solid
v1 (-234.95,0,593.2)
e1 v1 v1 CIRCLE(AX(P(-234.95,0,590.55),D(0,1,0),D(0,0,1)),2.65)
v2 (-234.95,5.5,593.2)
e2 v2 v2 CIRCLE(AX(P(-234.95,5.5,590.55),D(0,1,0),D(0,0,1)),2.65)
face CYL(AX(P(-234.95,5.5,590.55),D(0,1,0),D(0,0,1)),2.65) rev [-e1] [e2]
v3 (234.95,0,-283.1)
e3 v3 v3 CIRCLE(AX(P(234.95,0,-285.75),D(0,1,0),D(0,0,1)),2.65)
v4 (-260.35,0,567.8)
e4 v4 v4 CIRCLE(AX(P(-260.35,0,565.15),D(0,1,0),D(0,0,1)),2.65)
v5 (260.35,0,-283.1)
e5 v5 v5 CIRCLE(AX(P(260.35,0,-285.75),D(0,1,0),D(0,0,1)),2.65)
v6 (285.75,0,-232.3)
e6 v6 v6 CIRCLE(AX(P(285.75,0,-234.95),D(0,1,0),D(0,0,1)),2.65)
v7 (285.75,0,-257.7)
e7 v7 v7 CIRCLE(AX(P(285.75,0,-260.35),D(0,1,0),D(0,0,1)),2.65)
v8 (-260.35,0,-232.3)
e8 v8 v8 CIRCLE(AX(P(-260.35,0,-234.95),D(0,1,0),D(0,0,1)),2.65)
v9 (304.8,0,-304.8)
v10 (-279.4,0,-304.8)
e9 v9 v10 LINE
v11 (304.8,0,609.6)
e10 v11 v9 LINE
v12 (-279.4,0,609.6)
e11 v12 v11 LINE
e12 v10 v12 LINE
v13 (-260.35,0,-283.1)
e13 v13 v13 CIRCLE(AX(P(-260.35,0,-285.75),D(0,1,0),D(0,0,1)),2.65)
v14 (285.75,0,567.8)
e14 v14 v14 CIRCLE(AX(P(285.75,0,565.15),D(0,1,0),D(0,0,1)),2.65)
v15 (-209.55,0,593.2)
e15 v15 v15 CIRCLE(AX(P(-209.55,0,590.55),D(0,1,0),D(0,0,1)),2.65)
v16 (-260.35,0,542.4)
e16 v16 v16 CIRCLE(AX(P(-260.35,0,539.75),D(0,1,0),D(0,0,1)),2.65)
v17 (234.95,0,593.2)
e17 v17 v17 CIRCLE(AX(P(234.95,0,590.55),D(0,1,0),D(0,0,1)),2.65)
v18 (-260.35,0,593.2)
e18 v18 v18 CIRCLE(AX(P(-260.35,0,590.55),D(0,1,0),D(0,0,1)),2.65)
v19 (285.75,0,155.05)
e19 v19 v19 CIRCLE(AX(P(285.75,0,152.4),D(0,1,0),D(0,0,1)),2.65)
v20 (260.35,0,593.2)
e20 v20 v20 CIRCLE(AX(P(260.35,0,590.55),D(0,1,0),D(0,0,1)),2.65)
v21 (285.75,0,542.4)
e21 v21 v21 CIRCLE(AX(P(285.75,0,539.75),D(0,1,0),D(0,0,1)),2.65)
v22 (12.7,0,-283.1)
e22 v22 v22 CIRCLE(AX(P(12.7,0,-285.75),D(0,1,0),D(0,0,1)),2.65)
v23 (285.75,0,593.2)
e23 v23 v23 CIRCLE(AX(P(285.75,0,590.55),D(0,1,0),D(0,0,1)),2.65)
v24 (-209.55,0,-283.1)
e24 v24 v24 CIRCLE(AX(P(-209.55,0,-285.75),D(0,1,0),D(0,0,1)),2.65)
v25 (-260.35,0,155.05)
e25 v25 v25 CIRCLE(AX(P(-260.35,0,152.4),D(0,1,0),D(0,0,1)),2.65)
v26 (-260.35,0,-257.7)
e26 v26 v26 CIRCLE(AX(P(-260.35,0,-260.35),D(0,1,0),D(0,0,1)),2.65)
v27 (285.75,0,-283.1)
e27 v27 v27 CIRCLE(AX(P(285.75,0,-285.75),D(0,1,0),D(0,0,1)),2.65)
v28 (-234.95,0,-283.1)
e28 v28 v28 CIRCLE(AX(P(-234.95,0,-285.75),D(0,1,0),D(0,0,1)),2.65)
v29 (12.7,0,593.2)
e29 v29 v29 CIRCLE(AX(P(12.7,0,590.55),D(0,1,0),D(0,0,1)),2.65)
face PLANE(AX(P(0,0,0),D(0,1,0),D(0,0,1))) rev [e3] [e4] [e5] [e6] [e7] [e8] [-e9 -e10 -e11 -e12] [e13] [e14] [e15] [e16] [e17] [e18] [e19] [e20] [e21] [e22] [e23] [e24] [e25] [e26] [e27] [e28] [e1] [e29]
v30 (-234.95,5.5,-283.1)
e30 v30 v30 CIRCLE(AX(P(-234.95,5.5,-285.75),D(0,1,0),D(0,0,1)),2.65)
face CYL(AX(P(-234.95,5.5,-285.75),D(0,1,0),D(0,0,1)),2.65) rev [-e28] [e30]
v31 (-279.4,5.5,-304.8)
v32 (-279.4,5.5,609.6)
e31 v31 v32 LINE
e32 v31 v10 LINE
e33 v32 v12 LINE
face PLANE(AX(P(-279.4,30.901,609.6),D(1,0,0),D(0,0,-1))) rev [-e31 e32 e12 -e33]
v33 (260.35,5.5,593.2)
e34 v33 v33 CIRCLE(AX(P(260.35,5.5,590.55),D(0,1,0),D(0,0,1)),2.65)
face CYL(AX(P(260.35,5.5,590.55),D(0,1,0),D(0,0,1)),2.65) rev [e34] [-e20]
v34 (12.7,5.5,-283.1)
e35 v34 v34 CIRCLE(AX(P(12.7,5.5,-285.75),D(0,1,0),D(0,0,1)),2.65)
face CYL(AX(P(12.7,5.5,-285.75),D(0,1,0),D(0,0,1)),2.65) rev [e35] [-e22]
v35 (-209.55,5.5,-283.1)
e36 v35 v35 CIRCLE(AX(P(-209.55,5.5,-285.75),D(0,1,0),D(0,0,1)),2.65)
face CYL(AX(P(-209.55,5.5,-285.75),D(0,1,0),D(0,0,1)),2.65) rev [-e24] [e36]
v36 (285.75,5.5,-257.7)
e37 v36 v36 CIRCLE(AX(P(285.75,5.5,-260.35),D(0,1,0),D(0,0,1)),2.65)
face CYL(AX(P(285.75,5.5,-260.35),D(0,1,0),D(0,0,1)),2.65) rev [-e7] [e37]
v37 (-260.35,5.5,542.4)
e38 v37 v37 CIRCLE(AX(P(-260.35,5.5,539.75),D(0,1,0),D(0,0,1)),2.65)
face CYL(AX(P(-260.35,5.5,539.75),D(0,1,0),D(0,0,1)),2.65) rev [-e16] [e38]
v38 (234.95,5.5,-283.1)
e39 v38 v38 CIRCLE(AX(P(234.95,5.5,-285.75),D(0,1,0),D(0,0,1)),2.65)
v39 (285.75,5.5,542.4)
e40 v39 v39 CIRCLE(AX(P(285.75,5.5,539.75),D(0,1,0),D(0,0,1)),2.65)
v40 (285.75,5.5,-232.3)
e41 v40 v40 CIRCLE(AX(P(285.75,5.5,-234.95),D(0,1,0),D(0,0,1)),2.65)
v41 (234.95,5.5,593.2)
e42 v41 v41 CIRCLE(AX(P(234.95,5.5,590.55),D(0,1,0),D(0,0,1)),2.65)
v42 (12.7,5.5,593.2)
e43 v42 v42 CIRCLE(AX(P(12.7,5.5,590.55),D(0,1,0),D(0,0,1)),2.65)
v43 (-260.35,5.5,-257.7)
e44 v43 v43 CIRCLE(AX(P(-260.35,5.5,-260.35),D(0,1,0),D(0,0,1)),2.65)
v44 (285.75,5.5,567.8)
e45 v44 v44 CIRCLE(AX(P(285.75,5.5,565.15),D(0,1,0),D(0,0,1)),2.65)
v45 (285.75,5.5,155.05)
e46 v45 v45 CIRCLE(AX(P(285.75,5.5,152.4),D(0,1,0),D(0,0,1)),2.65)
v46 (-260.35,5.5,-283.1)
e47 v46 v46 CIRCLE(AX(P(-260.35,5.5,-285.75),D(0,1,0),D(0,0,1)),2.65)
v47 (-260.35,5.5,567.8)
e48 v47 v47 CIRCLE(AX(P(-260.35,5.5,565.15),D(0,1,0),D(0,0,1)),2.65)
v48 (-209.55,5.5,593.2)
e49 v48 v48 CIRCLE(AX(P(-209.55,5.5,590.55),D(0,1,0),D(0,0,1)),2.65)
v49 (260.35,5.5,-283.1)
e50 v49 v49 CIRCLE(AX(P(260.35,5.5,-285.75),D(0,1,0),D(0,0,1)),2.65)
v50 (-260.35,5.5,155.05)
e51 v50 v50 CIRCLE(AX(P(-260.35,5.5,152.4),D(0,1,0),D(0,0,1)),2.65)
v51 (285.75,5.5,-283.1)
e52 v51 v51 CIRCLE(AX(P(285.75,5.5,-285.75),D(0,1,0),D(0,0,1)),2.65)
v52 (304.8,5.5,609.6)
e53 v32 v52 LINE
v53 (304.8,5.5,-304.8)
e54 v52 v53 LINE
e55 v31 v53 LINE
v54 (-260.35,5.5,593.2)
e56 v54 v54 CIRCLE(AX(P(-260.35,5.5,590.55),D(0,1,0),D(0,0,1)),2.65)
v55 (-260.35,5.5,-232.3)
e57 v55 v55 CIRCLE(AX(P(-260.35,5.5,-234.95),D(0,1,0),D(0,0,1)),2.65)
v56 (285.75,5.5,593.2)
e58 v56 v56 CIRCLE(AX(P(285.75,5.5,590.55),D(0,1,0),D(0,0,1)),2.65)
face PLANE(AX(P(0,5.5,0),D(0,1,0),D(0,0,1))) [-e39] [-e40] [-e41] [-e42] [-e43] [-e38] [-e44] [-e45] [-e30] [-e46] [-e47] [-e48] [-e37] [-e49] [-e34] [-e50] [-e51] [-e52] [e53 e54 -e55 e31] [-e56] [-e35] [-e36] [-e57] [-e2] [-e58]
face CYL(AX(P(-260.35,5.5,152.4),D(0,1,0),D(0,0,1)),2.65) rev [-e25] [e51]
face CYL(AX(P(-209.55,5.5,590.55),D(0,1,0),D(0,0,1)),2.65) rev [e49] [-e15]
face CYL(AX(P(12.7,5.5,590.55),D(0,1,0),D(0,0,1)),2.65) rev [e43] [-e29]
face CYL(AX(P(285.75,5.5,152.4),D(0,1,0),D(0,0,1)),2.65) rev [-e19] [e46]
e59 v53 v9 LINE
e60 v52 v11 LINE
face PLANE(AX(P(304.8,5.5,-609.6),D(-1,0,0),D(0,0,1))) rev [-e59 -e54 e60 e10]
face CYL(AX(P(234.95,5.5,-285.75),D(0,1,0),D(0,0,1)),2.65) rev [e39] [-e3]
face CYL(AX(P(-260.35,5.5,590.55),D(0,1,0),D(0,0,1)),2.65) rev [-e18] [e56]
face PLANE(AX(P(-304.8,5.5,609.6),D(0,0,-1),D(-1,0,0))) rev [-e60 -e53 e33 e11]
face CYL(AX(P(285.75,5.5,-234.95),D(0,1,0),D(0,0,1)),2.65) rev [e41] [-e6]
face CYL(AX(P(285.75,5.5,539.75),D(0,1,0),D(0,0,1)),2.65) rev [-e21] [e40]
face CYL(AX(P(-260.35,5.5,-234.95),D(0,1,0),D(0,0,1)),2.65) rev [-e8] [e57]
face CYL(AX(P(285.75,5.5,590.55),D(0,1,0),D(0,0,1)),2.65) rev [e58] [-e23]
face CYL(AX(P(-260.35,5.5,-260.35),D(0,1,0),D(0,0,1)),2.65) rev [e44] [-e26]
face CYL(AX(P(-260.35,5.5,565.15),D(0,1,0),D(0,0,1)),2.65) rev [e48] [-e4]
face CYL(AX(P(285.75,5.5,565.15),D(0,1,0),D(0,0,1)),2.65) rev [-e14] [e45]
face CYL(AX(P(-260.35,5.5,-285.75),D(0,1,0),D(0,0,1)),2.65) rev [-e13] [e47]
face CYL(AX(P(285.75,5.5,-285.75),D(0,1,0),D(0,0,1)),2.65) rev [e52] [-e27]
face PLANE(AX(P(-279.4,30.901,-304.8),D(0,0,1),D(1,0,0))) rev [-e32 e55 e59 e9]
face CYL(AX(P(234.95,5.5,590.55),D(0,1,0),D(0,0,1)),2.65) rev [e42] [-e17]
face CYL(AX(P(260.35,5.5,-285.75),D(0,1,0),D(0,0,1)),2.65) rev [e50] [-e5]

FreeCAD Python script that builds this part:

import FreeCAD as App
import Part
import Sketcher

V = App.Vector
Q = App.Units.Quantity


def add_polygon(sketch, points):
    """Adds a closed chain of lines whose ends are joined by coincident constraints."""
    first, n = sketch.GeometryCount, len(points)
    for a, b in zip(points, points[1:] + points[:1]):
        sketch.addGeometry(Part.LineSegment(App.Vector(*a, 0), App.Vector(*b, 0)), False)
    for i in range(n):
        sketch.addConstraint(Sketcher.Constraint("Coincident", first + i, 2, first + (i + 1) % n, 1))

doc = App.newDocument("Part")
body = doc.addObject("PartDesign::Body", "Body")

sketch1 = body.newObject("Sketcher::SketchObject", "Sketch")
sketch1.AttachmentSupport = (doc.getObject("XZ_Plane"), [""])
sketch1.MapMode = "FlatFace"
add_polygon(sketch1, [(-305, -610), (-305, 610), (305, 610), (305, -610)])
sketch1.addConstraint([
    Sketcher.Constraint("Vertical", 0),
    Sketcher.Constraint("Horizontal", 1),
    Sketcher.Constraint("Vertical", 2),
    Sketcher.Constraint("Horizontal", 3),
    Sketcher.Constraint("Symmetric", 0, 2, 2, 2, -1, 1),
    Sketcher.Constraint("DistanceX", 1, 1, 1, 2, Q("24 in")),
    Sketcher.Constraint("DistanceY", 0, 1, 0, 2, Q("48 in")),
])
pad1 = body.newObject("PartDesign::Pad", "Pad")
pad1.Profile = sketch1
pad1.Length = 5.5
pad1.Reversed = True

sketch2 = body.newObject("Sketcher::SketchObject", "Sketch001")
sketch2.AttachmentSupport = (doc.getObject("XZ_Plane"), [""])
sketch2.MapMode = "FlatFace"
sketch2.AttachmentOffset = App.Placement(V(0, 0, -5.5), App.Rotation())
add_polygon(sketch2, [(-279.4, -307.3), (-279.4, -304.8), (304.8, -304.8), (304.8, -307.3)])
sketch2.addConstraint([
    Sketcher.Constraint("Vertical", 0),
    Sketcher.Constraint("Horizontal", 1),
    Sketcher.Constraint("Vertical", 2),
    Sketcher.Constraint("Horizontal", 3),
    Sketcher.Constraint("DistanceX", 1, 1, 1, 2, Q("23 in")),
    Sketcher.Constraint("DistanceY", 0, 1, 0, 2, Q("0.1 in")),
    Sketcher.Constraint("DistanceX", 0, 2, -1, 1, Q("11 in")),
    Sketcher.Constraint("DistanceY", 0, 2, -1, 1, Q("12 in")),
])
pad2 = body.newObject("PartDesign::Pad", "Pad001")
pad2.Profile = sketch2
pad2.Length = Q("1 in")
pad2.Reversed = True

sketch3 = body.newObject("Sketcher::SketchObject", "Sketch002")
sketch3.AttachmentSupport = (doc.getObject("XZ_Plane"), [""])
sketch3.MapMode = "FlatFace"
sketch3.AttachmentOffset = App.Placement(V(0, 0, -5.5), App.Rotation())
add_polygon(sketch3, [(-281.9, -609.6), (-281.9, 609.6), (-279.4, 609.6), (-279.4, -609.6)])
sketch3.addConstraint([
    Sketcher.Constraint("Vertical", 0),
    Sketcher.Constraint("Horizontal", 1),
    Sketcher.Constraint("Vertical", 2),
    Sketcher.Constraint("Horizontal", 3),
    Sketcher.Constraint("DistanceY", 0, 1, 0, 2, Q("48 in")),
    Sketcher.Constraint("DistanceX", 1, 1, 1, 2, Q("0.1 in")),
    Sketcher.Constraint("DistanceY", -1, 1, 0, 2, Q("24 in")),
    Sketcher.Constraint("DistanceX", 1, 2, -1, 1, Q("11 in")),
])
pad3 = body.newObject("PartDesign::Pad", "Pad002")
pad3.Profile = sketch3
pad3.Length = Q("1 in")
pad3.Reversed = True

sketch4 = body.newObject("Sketcher::SketchObject", "Sketch003")
sketch4.AttachmentSupport = (doc.getObject("XZ_Plane"), [""])
sketch4.MapMode = "FlatFace"
sketch4.AttachmentOffset = App.Placement(V(0, 0, -5.5), App.Rotation())
sketch4.addGeometry([
    Part.Circle(V(-260.4, -285.8, 0), V(0, 0, 1), 2.6),
    Part.Circle(V(-234.9, -285.8, 0), V(0, 0, 1), 2.6),
    Part.Circle(V(-209.6, -285.8, 0), V(0, 0, 1), 2.6),
    Part.Circle(V(-260.4, -260.4, 0), V(0, 0, 1), 2.6),
    Part.Circle(V(-260.4, -234.9, 0), V(0, 0, 1), 2.6),
    Part.Circle(V(12.7, -285.8, 0), V(0, 0, 1), 2.6),
    Part.Circle(V(234.9, -285.8, 0), V(0, 0, 1), 2.6),
    Part.Circle(V(260.4, -285.8, 0), V(0, 0, 1), 2.6),
    Part.Circle(V(285.8, -285.8, 0), V(0, 0, 1), 2.6),
    Part.Circle(V(285.8, -260.4, 0), V(0, 0, 1), 2.6),
    Part.Circle(V(285.8, -234.9, 0), V(0, 0, 1), 2.6),
    Part.Circle(V(-260.4, 152.4, 0), V(0, 0, 1), 2.6),
    Part.Circle(V(285.8, 152.4, 0), V(0, 0, 1), 2.6),
    Part.Circle(V(-260.4, 539.8, 0), V(0, 0, 1), 2.6),
    Part.Circle(V(-260.4, 565.1, 0), V(0, 0, 1), 2.6),
    Part.Circle(V(-260.4, 590.5, 0), V(0, 0, 1), 2.6),
    Part.Circle(V(-234.9, 590.5, 0), V(0, 0, 1), 2.6),
    Part.Circle(V(-209.6, 590.5, 0), V(0, 0, 1), 2.6),
    Part.Circle(V(12.7, 590.5, 0), V(0, 0, 1), 2.6),
    Part.Circle(V(234.9, 590.5, 0), V(0, 0, 1), 2.6),
    Part.Circle(V(260.4, 590.5, 0), V(0, 0, 1), 2.6),
    Part.Circle(V(285.8, 590.5, 0), V(0, 0, 1), 2.6),
    Part.Circle(V(285.8, 565.1, 0), V(0, 0, 1), 2.6),
    Part.Circle(V(285.8, 539.8, 0), V(0, 0, 1), 2.6),
], False)
sketch4.addConstraint([
    Sketcher.Constraint("Equal", 0, 1),
    Sketcher.Constraint("Equal", 1, 2),
    Sketcher.Constraint("Equal", 2, 3),
    Sketcher.Constraint("Equal", 3, 4),
    Sketcher.Constraint("Equal", 4, 5),
    Sketcher.Constraint("Equal", 5, 6),
    Sketcher.Constraint("Equal", 6, 7),
    Sketcher.Constraint("Equal", 7, 8),
    Sketcher.Constraint("Equal", 8, 9),
    Sketcher.Constraint("Equal", 9, 10),
    Sketcher.Constraint("Equal", 10, 11),
    Sketcher.Constraint("Equal", 11, 12),
    Sketcher.Constraint("Equal", 12, 13),
    Sketcher.Constraint("Equal", 13, 14),
    Sketcher.Constraint("Equal", 14, 15),
    Sketcher.Constraint("Equal", 15, 16),
    Sketcher.Constraint("Equal", 16, 17),
    Sketcher.Constraint("Equal", 17, 18),
    Sketcher.Constraint("Equal", 18, 19),
    Sketcher.Constraint("Equal", 19, 20),
    Sketcher.Constraint("Equal", 20, 21),
    Sketcher.Constraint("Equal", 21, 22),
    Sketcher.Constraint("Equal", 22, 23),
    Sketcher.Constraint("Symmetric", 1, 3, 6, 3, -2),
    Sketcher.Constraint("Symmetric", 0, 3, 7, 3, -2),
    Sketcher.Constraint("Symmetric", 16, 3, 19, 3, -2),
    Sketcher.Constraint("Symmetric", 15, 3, 20, 3, -2),
    Sketcher.Constraint("Horizontal", 0, 3, 1, 3),
    Sketcher.Constraint("Horizontal", 1, 3, 2, 3),
    Sketcher.Constraint("Horizontal", 2, 3, 5, 3),
    Sketcher.Constraint("Horizontal", 7, 3, 8, 3),
    Sketcher.Constraint("Horizontal", 3, 3, 9, 3),
    Sketcher.Constraint("Horizontal", 4, 3, 10, 3),
    Sketcher.Constraint("Horizontal", 11, 3, 12, 3),
    Sketcher.Constraint("Horizontal", 15, 3, 16, 3),
    Sketcher.Constraint("Horizontal", 16, 3, 17, 3),
    Sketcher.Constraint("Horizontal", 17, 3, 18, 3),
    Sketcher.Constraint("Horizontal", 20, 3, 21, 3),
    Sketcher.Constraint("Horizontal", 14, 3, 22, 3),
    Sketcher.Constraint("Horizontal", 13, 3, 23, 3),
    Sketcher.Constraint("Vertical", 0, 3, 3, 3),
    Sketcher.Constraint("Vertical", 3, 3, 4, 3),
    Sketcher.Constraint("Vertical", 8, 3, 9, 3),
    Sketcher.Constraint("Vertical", 9, 3, 10, 3),
    Sketcher.Constraint("Vertical", 4, 3, 11, 3),
    Sketcher.Constraint("Vertical", 10, 3, 12, 3),
    Sketcher.Constraint("Vertical", 11, 3, 13, 3),
    Sketcher.Constraint("Vertical", 13, 3, 14, 3),
    Sketcher.Constraint("Vertical", 14, 3, 15, 3),
    Sketcher.Constraint("Vertical", 1, 3, 16, 3),
    Sketcher.Constraint("Vertical", 2, 3, 17, 3),
    Sketcher.Constraint("Vertical", 5, 3, 18, 3),
    Sketcher.Constraint("Vertical", 12, 3, 21, 3),
    Sketcher.Constraint("Vertical", 21, 3, 22, 3),
    Sketcher.Constraint("Vertical", 22, 3, 23, 3),
    Sketcher.Constraint("DistanceY", -1, 1, 11, 3, Q("6 in")),
    Sketcher.Constraint("DistanceX", 0, 3, 1, 3, Q("1 in")),
    Sketcher.Constraint("DistanceX", 1, 3, 2, 3, Q("1 in")),
    Sketcher.Constraint("DistanceY", 0, 3, 3, 3, Q("1 in")),
    Sketcher.Constraint("DistanceY", 3, 3, 4, 3, Q("1 in")),
    Sketcher.Constraint("DistanceX", 7, 3, 8, 3, Q("1 in")),
    Sketcher.Constraint("DistanceY", 13, 3, 14, 3, Q("1 in")),
    Sketcher.Constraint("DistanceY", 14, 3, 15, 3, Q("1 in")),
    Sketcher.Constraint("DistanceX", -1, 1, 5, 3, Q("0.5 in")),
    Sketcher.Constraint("DistanceX", 2, 3, 6, 3, Q("17.5 in")),
    Sketcher.Constraint("DistanceY", 4, 3, 13, 3, Q("30.5 in")),
    Sketcher.Constraint("Diameter", 0, 5.3),
    Sketcher.Constraint("DistanceY", 0, 3, -1, 1, Q("11.25 in")),
])
doc.recompute()
hole = body.newObject("PartDesign::Hole", "Hole")
hole.Profile = sketch4
hole.ThreadType = "None"
hole.Diameter = 5.3
hole.DepthType = "ThroughAll"
hole.Reversed = True

sketch5 = body.newObject("Sketcher::SketchObject", "Sketch004")
sketch5.AttachmentSupport = (doc.getObject("XZ_Plane"), [""])
sketch5.MapMode = "FlatFace"
add_polygon(sketch5, [(-279, 610), (-305, 610), (-305, -610), (305, -610), (305, -305), (-279, -305)])
sketch5.addConstraint([
    Sketcher.Constraint("Horizontal", 0),
    Sketcher.Constraint("Vertical", 1),
    Sketcher.Constraint("Horizontal", 2),
    Sketcher.Constraint("Vertical", 3),
    Sketcher.Constraint("Horizontal", 4),
    Sketcher.Constraint("Vertical", 5),
    Sketcher.Constraint("Symmetric", 0, 2, 2, 2, -1, 1),
    Sketcher.Constraint("DistanceX", 0, 2, 0, 1, Q("1 in")),
    Sketcher.Constraint("DistanceX", 2, 1, 2, 2, Q("24 in")),
    Sketcher.Constraint("DistanceY", 1, 2, 1, 1, Q("48 in")),
    Sketcher.Constraint("DistanceY", 3, 1, 3, 2, Q("12 in")),
])
pocket1 = body.newObject("PartDesign::Pocket", "Pocket")
pocket1.Profile = sketch5
pocket1.Length = 30.9

doc.recompute()
